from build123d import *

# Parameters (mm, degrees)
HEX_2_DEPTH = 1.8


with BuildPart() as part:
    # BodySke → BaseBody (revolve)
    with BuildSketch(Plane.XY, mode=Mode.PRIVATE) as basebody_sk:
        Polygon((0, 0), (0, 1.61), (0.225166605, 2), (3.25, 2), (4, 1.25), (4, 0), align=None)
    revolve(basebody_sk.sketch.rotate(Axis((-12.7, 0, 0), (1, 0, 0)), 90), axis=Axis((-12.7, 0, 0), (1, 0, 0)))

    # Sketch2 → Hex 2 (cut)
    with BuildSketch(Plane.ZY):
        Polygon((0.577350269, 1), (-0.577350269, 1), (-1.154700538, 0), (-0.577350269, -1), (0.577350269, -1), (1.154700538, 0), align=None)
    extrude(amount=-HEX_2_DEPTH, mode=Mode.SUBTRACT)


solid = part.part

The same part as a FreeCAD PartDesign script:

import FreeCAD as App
import Part
import Sketcher

V = App.Vector
Q = App.Units.Quantity

doc = App.newDocument("Part")
body = doc.addObject("PartDesign::Body", "Body")

# Sketch on XY plane
sketch1 = doc.addObject("Sketcher::SketchObject", "Sketch")
body.addObject(sketch1)
sketch1.AttachmentSupport = (doc.XY_Plane, [""])
sketch1.MapMode = "FlatFace"
sketch1.addGeometry([
    Part.LineSegment(V(0, 1.61, 0), V(0, 0, 0)),  # 0
    Part.LineSegment(V(0, 0, 0), V(4, 0, 0)),  # 1
    Part.LineSegment(V(4, 0, 0), V(4, 1.25, 0)),  # 2
    Part.LineSegment(V(4, 1.25, 0), V(3.25, 2, 0)),  # 3
    Part.LineSegment(V(3.25, 2, 0), V(0.225167, 2, 0)),  # 4
    Part.LineSegment(V(0.225167, 2, 0), V(0, 1.61, 0)),  # 5
], False)
sketch1.addConstraint([
    Sketcher.Constraint("Coincident", 0, 2, 1, 1),
    Sketcher.Constraint("Coincident", 1, 2, 2, 1),
    Sketcher.Constraint("Coincident", 2, 2, 3, 1),
    Sketcher.Constraint("Coincident", 3, 2, 4, 1),
    Sketcher.Constraint("Coincident", 4, 2, 5, 1),
    Sketcher.Constraint("Coincident", 5, 2, 0, 1),
    Sketcher.Constraint("Vertical", 0),
    Sketcher.Constraint("Horizontal", 1),
    Sketcher.Constraint("Vertical", 2),
    Sketcher.Constraint("Horizontal", 4),
    Sketcher.Constraint("Coincident", 0, 2, -1, 1),
    Sketcher.Constraint("DistanceX", 1, 1, 1, 2, 4.0),
    Sketcher.Constraint("Angle", 3, Q("135 deg")),
    Sketcher.Constraint("Angle", 5, Q("-120 deg")),
    Sketcher.Constraint("DistanceY", -1, 1, 3, 2, 2.0),
    Sketcher.Constraint("DistanceY", 0, 2, 0, 1, 1.61),
    Sketcher.Constraint("DistanceY", 2, 1, 2, 2, 1.25),
])
revolution = doc.addObject("PartDesign::Revolution", "Revolution")
body.addObject(revolution)
revolution.Profile = sketch1
revolution.ReferenceAxis = (sketch1, ["H_Axis"])
revolution.Angle = 360

# Sketch on YZ plane
sketch2 = doc.addObject("Sketcher::SketchObject", "Sketch001")
body.addObject(sketch2)
sketch2.AttachmentSupport = (doc.YZ_Plane, [""])
sketch2.MapMode = "FlatFace"
sketch2.addGeometry([
    Part.LineSegment(V(1, 0.57735, 0), V(1, -0.57735, 0)),  # 0
    Part.LineSegment(V(1, -0.57735, 0), V(0, -1.154701, 0)),  # 1
    Part.LineSegment(V(0, -1.154701, 0), V(-1, -0.57735, 0)),  # 2
    Part.LineSegment(V(-1, -0.57735, 0), V(-1, 0.57735, 0)),  # 3
    Part.LineSegment(V(-1, 0.57735, 0), V(0, 1.154701, 0)),  # 4
    Part.LineSegment(V(0, 1.154701, 0), V(1, 0.57735, 0)),  # 5
], False)
sketch2.addConstraint([
    Sketcher.Constraint("Coincident", 0, 2, 1, 1),
    Sketcher.Constraint("Coincident", 1, 2, 2, 1),
    Sketcher.Constraint("Coincident", 2, 2, 3, 1),
    Sketcher.Constraint("Coincident", 3, 2, 4, 1),
    Sketcher.Constraint("Coincident", 4, 2, 5, 1),
    Sketcher.Constraint("Coincident", 5, 2, 0, 1),
    Sketcher.Constraint("Vertical", 0),
    Sketcher.Constraint("Vertical", 3),
    Sketcher.Constraint("Symmetric", 0, 2, 3, 2, -1, 1),
    Sketcher.Constraint("Symmetric", 1, 2, 4, 2, -1, 1),
    Sketcher.Constraint("PointOnObject", 1, 2, -2),
    Sketcher.Constraint("Parallel", 2, 5),
    Sketcher.Constraint("Horizontal", 0, 2, 2, 2),
    Sketcher.Constraint("Angle", 1, Q("-150 deg")),
    Sketcher.Constraint("DistanceX", -1, 1, 0, 2, 1.0),
    Sketcher.Constraint("DistanceY", 0, 2, 0, 1, 1.154701),
])
pocket1 = doc.addObject("PartDesign::Pocket", "Pocket")
body.addObject(pocket1)
pocket1.Profile = sketch2
pocket1.Length = 1.8
pocket1.Reversed = True

doc.recompute()
